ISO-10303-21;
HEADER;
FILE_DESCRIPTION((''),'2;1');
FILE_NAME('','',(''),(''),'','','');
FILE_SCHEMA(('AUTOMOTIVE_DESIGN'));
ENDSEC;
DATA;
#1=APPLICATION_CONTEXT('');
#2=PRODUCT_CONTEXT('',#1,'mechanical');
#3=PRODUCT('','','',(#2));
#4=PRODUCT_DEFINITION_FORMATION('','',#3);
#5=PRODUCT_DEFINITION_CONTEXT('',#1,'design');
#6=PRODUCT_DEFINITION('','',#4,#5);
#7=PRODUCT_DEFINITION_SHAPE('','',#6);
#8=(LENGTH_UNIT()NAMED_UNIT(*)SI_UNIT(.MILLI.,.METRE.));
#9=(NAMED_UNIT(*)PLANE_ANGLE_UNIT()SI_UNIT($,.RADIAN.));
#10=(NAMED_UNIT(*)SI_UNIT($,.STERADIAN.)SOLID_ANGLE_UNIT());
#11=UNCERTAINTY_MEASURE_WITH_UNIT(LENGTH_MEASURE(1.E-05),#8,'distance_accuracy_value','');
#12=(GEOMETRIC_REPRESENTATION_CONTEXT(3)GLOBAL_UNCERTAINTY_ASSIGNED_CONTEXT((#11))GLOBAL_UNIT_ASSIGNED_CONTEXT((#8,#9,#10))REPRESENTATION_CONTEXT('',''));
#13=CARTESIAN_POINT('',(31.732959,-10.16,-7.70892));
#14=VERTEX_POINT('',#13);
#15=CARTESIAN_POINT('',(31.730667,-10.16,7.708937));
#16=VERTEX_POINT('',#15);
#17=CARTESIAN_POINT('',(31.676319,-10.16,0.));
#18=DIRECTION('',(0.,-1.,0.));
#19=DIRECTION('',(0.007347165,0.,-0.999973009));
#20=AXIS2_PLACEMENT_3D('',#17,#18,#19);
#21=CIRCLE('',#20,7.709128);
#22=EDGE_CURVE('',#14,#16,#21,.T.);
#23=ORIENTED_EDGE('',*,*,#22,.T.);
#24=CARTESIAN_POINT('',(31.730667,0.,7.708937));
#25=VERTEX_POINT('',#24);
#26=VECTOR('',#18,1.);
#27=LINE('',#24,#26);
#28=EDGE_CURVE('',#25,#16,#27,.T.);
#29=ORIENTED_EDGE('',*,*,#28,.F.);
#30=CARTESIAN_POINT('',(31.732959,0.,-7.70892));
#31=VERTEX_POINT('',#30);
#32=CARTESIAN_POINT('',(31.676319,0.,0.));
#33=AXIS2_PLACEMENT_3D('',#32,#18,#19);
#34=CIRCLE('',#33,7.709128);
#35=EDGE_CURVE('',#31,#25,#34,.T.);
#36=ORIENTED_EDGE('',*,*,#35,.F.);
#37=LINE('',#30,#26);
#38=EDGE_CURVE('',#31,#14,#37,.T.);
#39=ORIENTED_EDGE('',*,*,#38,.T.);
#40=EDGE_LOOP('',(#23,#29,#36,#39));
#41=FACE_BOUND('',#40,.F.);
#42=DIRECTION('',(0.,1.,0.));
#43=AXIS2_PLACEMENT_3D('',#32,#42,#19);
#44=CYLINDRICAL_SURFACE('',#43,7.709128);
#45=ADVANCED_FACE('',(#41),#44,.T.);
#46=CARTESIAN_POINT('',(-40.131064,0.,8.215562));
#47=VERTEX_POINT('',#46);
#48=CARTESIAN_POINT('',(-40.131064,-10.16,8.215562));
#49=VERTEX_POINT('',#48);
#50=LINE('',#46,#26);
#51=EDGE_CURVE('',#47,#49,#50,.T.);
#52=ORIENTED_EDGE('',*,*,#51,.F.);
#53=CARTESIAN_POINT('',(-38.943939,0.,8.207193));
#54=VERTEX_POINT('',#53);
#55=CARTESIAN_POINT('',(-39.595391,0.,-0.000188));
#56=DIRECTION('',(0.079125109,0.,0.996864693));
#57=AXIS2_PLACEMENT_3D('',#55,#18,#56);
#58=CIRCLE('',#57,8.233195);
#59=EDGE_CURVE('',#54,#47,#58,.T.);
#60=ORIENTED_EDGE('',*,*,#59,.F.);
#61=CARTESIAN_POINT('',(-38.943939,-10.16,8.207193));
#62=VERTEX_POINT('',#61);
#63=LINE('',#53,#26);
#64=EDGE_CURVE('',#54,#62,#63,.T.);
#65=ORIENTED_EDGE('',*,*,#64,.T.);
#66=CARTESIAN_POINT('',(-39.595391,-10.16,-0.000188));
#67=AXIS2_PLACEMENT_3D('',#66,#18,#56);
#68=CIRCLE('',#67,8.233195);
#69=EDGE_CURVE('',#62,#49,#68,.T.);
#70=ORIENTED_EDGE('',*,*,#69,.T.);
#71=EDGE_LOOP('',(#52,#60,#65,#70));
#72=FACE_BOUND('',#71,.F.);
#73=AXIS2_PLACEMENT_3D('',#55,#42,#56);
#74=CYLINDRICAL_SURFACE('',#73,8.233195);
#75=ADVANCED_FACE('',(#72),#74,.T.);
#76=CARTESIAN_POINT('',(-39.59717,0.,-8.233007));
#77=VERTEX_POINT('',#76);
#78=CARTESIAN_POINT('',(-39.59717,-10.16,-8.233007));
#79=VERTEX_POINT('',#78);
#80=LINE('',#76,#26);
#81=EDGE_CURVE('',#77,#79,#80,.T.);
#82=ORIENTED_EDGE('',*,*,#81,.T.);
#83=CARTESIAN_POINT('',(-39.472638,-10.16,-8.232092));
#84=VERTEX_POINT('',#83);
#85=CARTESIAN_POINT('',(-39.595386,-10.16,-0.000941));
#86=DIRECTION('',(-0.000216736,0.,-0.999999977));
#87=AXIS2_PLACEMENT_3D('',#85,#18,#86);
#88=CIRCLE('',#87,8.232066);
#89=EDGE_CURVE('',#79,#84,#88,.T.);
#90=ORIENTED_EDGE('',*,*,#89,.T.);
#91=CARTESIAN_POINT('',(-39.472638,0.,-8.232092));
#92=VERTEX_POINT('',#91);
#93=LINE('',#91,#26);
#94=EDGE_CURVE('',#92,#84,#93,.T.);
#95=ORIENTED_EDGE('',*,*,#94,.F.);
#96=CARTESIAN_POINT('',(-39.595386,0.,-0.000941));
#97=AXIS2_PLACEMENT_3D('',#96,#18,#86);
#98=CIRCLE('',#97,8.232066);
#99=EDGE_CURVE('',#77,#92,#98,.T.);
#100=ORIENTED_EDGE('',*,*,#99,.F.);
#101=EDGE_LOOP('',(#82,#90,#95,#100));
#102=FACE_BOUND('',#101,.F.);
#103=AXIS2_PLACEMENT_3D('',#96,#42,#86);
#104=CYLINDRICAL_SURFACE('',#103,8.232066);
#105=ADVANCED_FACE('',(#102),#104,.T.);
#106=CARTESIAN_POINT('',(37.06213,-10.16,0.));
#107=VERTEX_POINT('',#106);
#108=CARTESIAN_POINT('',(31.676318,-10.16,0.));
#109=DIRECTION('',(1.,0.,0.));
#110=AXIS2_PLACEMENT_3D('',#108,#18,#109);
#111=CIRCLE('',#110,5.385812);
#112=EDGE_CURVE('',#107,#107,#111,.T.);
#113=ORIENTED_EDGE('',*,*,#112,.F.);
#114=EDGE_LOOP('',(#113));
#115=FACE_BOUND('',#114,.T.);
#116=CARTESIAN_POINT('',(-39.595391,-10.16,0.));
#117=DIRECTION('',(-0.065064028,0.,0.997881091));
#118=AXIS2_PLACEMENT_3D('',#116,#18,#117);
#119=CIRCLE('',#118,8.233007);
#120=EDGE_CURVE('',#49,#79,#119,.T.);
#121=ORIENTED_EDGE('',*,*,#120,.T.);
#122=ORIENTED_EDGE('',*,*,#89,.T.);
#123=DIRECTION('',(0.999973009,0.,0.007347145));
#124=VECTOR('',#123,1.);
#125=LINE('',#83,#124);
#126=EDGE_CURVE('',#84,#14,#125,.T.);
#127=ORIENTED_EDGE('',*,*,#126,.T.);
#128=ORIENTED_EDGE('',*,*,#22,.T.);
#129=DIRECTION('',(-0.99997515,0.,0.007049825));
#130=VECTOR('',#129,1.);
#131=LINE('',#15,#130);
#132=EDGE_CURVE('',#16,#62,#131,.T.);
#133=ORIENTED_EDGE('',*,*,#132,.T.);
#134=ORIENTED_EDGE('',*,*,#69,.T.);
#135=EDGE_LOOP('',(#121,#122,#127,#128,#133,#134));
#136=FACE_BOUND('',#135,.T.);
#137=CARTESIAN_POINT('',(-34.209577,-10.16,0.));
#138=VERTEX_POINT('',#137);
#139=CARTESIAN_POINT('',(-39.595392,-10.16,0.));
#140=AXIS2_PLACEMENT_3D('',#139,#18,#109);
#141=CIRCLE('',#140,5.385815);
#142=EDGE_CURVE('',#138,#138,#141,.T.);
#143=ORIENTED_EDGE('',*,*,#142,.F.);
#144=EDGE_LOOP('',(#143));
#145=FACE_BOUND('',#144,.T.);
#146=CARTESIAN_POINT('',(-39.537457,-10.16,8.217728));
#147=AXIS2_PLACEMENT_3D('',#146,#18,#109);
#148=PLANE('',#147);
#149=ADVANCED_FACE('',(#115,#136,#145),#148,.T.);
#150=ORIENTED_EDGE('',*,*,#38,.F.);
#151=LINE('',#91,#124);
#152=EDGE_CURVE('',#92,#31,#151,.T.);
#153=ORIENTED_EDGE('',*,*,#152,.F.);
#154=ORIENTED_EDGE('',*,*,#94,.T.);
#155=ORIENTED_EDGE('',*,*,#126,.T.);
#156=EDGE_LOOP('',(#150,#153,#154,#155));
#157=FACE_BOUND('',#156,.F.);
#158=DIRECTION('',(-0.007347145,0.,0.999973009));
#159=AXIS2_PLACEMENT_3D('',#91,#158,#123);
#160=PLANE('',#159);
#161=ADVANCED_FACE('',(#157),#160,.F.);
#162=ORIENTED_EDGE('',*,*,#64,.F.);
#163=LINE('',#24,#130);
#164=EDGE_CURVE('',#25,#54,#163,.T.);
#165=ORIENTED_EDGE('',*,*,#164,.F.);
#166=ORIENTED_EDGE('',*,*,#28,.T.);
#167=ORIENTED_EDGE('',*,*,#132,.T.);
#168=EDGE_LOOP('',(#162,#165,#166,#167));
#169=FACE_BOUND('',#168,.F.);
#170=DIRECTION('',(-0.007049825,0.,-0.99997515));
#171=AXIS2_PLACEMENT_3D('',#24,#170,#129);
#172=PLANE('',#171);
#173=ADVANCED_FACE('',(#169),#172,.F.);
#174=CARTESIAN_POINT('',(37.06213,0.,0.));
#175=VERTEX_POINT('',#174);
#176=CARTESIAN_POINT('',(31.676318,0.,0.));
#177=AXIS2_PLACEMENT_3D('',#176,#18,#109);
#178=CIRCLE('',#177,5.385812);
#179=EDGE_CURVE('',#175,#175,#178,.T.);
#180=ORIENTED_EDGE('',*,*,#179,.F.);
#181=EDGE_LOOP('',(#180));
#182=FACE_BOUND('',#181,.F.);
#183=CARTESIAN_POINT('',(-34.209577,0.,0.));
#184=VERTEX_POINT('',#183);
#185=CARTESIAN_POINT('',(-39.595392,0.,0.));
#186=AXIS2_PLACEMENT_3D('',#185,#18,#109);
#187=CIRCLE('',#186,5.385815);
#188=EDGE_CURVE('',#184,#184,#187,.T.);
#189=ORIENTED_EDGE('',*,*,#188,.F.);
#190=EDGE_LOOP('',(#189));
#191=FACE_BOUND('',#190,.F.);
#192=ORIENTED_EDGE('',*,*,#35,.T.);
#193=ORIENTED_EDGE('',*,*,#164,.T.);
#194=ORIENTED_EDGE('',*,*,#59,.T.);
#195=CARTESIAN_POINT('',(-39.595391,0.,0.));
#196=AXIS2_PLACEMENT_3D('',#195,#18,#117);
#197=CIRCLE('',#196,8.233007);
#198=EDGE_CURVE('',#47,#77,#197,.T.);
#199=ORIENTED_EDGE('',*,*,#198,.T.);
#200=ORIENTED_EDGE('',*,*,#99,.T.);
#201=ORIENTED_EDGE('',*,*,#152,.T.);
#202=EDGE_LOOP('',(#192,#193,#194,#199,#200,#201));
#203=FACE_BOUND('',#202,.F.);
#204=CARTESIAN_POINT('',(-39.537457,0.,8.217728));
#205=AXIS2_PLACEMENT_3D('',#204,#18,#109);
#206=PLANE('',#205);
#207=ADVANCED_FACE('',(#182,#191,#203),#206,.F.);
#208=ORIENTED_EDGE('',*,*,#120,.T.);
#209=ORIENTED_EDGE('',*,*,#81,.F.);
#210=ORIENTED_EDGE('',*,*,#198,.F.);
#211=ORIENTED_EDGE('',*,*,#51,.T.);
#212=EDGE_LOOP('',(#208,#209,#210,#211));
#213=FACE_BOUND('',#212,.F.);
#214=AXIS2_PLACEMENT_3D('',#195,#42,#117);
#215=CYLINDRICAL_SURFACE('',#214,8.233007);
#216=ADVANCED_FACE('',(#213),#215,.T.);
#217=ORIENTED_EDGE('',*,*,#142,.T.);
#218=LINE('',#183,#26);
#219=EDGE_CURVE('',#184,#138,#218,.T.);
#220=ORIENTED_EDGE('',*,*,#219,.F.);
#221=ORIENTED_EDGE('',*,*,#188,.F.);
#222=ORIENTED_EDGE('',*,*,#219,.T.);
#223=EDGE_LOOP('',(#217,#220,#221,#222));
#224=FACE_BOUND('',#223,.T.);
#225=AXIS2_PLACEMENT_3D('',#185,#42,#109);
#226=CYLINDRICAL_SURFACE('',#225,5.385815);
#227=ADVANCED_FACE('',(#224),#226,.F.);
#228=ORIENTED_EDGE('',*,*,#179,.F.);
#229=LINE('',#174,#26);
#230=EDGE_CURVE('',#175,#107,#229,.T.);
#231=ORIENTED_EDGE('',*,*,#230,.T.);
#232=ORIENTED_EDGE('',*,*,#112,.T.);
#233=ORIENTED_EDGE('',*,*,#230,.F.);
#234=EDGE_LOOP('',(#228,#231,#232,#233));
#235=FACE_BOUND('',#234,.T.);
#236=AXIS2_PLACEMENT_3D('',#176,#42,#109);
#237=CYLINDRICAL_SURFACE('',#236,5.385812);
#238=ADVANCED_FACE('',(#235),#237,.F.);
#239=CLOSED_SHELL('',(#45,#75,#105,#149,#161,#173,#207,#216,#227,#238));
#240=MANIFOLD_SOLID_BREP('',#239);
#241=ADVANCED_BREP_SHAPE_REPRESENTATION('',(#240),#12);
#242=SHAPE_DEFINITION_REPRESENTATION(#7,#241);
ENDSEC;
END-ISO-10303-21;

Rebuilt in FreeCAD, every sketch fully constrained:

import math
import FreeCAD as App
import Part
import Sketcher

V = App.Vector
Q = App.Units.Quantity

doc = App.newDocument("Part")
body = doc.addObject("PartDesign::Body", "Body")

# Sketch on XZ plane
sketch1 = body.newObject("Sketcher::SketchObject", "Sketch")
sketch1.AttachmentSupport = (doc.getObject("XZ_Plane"), [""])
sketch1.MapMode = "FlatFace"
sketch1.addGeometry([
    Part.ArcOfCircle(Part.Circle(V(-39.595391, -0.000188, 0), V(0, 0, 1), 8.233195), math.radians(85.461721), math.radians(93.730444)),  # 0
    Part.ArcOfCircle(Part.Circle(V(-39.595391, 0, 0), V(0, 0, 1), 8.233007), math.radians(93.730529), math.radians(269.987622)),  # 1
    Part.ArcOfCircle(Part.Circle(V(-39.595386, -0.000941, 0), V(0, 0, 1), 8.232066), math.radians(-90.012418), math.radians(-89.145635)),  # 2
    Part.LineSegment(V(-39.472638, -8.232092, 0), V(31.732959, -7.70892, 0)),  # 3
    Part.ArcOfCircle(Part.Circle(V(31.676319, 0, 0), V(0, 0, 1), 7.709128), math.radians(-89.579035), math.radians(89.59607)),  # 4
    Part.LineSegment(V(31.730667, 7.708937, 0), V(-38.943939, 8.207193, 0)),  # 5
    Part.Circle(V(-39.595392, 0, 0), V(0, 0, 1), 5.385815),  # 6
    Part.Circle(V(31.676318, 0, 0), V(0, 0, 1), 5.385812),  # 7
], False)
sketch1.addConstraint([
    Sketcher.Constraint("Coincident", 0, 2, 1, 1),
    Sketcher.Constraint("Coincident", 1, 2, 2, 1),
    Sketcher.Constraint("Coincident", 2, 2, 3, 1),
    Sketcher.Constraint("Coincident", 3, 2, 4, 1),
    Sketcher.Constraint("Coincident", 4, 2, 5, 1),
    Sketcher.Constraint("Coincident", 5, 2, 0, 1),
    Sketcher.Constraint("Coincident", 6, 3, 1, 3),
    Sketcher.Constraint("Coincident", 7, 3, 4, 3),
    Sketcher.Constraint("PointOnObject", 1, 3, -1),
    Sketcher.Constraint("PointOnObject", 4, 3, -1),
    Sketcher.Constraint("Diameter", 6, 10.77163),
    Sketcher.Constraint("Radius", 4, 7.709128),
    Sketcher.Constraint("Diameter", 7, 10.771624),
    Sketcher.Constraint("Radius", 0, 8.233195),
    Sketcher.Constraint("Radius", 1, 8.233007),
    Sketcher.Constraint("Radius", 2, 8.232066),
    Sketcher.Constraint("Distance", 3, 71.207519),
    Sketcher.Constraint("DistanceX", 0, 3, -1, 1, 39.595391),
    Sketcher.Constraint("DistanceY", 0, 3, -1, 1, 0.000188),
    Sketcher.Constraint("DistanceX", -1, 1, 4, 3, 31.676319),
    Sketcher.Constraint("DistanceX", 1, 2, -1, 1, 39.59717),
    Sketcher.Constraint("DistanceX", 2, 2, -1, 1, 39.472638),
    Sketcher.Constraint("DistanceY", 2, 2, -1, 1, 8.232092),
    Sketcher.Constraint("DistanceX", 5, 2, -1, 1, 38.943939),
    Sketcher.Constraint("DistanceY", 0, 3, 0, 2, 8.21575),
    Sketcher.Constraint("DistanceX", 4, 3, 4, 2, 0.054348),
])
pad1 = body.newObject("PartDesign::Pad", "Pad")
pad1.Profile = sketch1
pad1.Length = Q("0.4 in")

doc.recompute()
